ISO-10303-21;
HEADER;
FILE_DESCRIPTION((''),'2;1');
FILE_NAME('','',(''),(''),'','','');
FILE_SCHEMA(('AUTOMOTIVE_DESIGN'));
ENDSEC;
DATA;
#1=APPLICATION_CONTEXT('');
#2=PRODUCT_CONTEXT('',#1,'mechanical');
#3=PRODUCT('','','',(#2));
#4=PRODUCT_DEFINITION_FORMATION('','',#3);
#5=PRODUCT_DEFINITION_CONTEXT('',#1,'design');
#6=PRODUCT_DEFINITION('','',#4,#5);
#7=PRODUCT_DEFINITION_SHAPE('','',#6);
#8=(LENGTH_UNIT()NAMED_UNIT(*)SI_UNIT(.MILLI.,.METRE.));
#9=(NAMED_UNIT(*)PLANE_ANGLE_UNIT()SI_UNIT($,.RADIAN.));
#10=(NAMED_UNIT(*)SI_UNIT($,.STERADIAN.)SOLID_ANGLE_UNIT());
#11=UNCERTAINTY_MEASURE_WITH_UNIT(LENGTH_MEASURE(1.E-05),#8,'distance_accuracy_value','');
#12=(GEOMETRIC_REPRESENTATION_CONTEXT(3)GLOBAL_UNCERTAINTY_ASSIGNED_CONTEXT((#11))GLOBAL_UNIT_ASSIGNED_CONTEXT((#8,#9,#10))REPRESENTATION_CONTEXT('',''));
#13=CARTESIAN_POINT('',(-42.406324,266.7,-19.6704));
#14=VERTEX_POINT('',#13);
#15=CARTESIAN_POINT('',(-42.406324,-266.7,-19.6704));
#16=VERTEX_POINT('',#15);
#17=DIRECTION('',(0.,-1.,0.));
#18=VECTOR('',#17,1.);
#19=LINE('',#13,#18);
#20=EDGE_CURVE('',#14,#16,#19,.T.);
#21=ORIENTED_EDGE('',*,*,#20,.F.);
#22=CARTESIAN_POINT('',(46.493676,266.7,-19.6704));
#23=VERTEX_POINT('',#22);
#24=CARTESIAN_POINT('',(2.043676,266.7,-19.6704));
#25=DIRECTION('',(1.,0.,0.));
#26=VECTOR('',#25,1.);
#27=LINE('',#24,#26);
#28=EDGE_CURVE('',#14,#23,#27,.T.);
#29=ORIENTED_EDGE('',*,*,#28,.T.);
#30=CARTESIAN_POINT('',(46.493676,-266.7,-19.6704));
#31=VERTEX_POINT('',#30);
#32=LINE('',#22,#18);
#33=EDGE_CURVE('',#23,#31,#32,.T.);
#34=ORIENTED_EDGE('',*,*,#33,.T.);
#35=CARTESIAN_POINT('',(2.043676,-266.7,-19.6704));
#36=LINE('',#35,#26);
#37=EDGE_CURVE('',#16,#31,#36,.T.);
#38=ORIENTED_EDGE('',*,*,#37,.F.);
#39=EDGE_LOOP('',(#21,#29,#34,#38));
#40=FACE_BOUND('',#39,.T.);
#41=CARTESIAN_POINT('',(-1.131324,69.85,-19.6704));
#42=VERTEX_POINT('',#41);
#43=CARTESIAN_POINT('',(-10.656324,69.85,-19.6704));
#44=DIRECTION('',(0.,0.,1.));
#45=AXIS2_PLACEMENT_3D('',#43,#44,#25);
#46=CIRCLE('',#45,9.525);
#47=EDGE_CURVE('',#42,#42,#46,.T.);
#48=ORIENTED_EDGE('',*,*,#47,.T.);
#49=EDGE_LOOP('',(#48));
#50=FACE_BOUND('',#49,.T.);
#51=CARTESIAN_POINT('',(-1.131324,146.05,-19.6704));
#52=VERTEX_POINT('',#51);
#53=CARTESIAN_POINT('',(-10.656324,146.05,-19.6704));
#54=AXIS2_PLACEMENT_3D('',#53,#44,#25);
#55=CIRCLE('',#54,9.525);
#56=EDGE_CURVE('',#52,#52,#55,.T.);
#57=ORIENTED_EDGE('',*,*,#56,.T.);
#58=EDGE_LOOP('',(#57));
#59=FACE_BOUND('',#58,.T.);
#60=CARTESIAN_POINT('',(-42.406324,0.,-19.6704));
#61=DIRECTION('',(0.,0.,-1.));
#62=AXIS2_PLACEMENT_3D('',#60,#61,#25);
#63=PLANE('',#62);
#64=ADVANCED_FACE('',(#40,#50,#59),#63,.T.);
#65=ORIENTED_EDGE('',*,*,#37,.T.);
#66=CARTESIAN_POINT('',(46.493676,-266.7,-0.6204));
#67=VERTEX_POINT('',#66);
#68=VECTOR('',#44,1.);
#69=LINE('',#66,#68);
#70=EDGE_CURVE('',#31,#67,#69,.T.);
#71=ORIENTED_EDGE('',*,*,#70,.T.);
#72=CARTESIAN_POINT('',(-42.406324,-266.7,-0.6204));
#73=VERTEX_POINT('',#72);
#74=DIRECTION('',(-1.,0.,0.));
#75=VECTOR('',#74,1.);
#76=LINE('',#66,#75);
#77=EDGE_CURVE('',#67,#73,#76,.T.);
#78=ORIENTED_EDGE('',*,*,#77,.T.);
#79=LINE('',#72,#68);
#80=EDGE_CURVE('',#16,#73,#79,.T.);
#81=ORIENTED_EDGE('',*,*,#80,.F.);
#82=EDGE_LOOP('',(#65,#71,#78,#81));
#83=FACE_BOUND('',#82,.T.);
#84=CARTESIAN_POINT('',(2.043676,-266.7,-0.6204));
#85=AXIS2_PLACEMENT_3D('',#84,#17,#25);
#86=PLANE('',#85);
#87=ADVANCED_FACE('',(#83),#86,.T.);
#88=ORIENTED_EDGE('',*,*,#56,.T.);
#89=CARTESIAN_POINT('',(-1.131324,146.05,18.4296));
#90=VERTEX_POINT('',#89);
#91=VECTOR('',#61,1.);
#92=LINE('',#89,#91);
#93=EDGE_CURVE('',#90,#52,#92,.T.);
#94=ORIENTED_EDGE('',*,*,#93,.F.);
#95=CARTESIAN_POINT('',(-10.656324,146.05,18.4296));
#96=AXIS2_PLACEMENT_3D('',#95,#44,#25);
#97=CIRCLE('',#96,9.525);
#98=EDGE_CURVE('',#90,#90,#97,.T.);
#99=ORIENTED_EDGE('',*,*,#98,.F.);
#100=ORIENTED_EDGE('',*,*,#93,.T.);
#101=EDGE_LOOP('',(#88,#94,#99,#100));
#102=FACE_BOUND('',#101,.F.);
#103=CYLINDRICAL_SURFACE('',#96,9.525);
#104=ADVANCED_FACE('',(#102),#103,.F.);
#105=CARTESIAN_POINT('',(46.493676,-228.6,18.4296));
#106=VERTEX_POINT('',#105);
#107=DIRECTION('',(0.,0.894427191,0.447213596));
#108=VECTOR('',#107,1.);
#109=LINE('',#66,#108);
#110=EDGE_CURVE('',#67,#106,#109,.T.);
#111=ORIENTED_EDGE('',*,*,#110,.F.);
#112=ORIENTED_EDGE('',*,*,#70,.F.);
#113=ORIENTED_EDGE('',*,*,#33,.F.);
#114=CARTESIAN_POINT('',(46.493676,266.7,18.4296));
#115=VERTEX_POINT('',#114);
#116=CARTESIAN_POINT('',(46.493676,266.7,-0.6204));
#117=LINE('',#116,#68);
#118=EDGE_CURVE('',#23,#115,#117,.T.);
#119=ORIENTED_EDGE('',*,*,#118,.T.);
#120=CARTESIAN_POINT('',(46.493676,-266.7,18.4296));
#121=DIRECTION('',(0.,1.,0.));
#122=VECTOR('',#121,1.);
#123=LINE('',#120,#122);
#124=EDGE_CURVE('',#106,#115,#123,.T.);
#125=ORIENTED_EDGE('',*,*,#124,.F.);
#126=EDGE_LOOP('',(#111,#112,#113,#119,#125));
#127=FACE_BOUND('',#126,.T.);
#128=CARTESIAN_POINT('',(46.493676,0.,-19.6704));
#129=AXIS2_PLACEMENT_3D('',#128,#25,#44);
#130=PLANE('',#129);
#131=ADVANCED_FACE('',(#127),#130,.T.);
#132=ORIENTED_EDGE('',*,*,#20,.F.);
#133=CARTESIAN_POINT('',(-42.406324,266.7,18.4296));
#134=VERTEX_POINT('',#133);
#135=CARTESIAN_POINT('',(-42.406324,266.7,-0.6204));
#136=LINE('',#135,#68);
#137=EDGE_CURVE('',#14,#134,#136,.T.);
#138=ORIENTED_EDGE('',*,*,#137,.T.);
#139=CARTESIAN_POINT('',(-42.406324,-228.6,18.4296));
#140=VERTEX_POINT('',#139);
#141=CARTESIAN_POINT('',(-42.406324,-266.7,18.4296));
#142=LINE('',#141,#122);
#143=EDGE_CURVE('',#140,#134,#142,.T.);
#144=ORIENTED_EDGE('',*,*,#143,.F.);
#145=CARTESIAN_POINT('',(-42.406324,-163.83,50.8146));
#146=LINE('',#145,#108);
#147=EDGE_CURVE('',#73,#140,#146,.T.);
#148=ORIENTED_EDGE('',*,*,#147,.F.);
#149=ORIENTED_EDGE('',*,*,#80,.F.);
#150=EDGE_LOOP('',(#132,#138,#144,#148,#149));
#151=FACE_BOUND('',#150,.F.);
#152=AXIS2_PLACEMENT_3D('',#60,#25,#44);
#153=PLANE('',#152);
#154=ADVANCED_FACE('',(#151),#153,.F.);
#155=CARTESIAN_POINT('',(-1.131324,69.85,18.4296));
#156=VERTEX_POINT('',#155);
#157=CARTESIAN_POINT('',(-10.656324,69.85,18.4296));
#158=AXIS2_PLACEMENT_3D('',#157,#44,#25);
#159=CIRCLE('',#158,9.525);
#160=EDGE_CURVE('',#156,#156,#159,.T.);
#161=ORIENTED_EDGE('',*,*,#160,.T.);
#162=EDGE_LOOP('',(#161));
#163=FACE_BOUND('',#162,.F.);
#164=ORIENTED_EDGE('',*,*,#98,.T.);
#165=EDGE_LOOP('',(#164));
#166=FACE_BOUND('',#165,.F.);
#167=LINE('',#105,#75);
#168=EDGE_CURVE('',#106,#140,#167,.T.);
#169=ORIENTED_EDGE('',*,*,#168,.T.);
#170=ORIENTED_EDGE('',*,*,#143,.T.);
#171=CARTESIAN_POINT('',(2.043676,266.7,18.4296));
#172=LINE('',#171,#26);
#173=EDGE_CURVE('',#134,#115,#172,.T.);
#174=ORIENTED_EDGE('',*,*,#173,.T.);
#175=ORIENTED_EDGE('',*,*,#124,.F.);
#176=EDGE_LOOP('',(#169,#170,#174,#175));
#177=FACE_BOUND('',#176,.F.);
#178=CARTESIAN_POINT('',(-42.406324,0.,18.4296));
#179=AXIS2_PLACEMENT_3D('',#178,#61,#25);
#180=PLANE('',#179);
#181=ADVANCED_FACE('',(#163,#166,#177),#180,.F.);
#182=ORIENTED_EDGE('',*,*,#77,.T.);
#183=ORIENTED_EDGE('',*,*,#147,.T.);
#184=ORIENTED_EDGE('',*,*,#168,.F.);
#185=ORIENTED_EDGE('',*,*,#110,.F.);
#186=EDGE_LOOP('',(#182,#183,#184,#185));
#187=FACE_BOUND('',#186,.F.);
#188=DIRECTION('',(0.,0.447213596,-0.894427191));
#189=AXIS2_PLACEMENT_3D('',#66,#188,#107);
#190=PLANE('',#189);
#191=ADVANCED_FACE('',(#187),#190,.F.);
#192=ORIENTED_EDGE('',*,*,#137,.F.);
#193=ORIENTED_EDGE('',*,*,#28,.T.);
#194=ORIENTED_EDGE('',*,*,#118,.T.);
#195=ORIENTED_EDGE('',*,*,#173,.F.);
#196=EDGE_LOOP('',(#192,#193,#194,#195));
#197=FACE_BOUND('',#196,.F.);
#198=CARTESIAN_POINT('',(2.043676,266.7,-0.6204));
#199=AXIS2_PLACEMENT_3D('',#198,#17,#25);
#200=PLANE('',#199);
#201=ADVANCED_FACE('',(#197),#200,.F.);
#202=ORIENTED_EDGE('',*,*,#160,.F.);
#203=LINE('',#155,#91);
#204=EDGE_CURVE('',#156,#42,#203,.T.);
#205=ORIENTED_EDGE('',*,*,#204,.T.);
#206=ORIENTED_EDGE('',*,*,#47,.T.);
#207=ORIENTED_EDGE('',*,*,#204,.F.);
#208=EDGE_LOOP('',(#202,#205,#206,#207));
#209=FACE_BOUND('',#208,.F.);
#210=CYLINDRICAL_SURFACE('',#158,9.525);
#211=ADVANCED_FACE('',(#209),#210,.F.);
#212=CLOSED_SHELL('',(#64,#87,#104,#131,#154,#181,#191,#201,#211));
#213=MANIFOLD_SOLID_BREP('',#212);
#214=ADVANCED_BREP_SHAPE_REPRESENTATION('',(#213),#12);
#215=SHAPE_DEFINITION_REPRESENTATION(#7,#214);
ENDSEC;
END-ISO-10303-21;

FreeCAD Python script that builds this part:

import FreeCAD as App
import Part
import Sketcher
Q = App.Units.Quantity


def add_polygon(sketch, points):
    """Adds a closed chain of lines whose ends are joined by coincident constraints."""
    first, n = sketch.GeometryCount, len(points)
    for a, b in zip(points, points[1:] + points[:1]):
        sketch.addGeometry(Part.LineSegment(App.Vector(*a, 0), App.Vector(*b, 0)), False)
    for i in range(n):
        sketch.addConstraint(Sketcher.Constraint("Coincident", first + i, 2, first + (i + 1) % n, 1))

doc = App.newDocument("Part")
body = doc.addObject("PartDesign::Body", "Body")

sketch1 = body.newObject("Sketcher::SketchObject", "Sketch")
sketch1.AttachmentSupport = (doc.getObject("XZ_Plane"), [""])
sketch1.MapMode = "FlatFace"
add_polygon(sketch1, [(-42, 18), (-42, -20), (46, -20), (46, 18)])
sketch1.addConstraint([
    Sketcher.Constraint("Vertical", 0),
    Sketcher.Constraint("Horizontal", 1),
    Sketcher.Constraint("Vertical", 2),
    Sketcher.Constraint("Horizontal", 3),
    Sketcher.Constraint("DistanceX", 1, 1, 1, 2, Q("3.5 in")),
    Sketcher.Constraint("DistanceY", 0, 2, 0, 1, Q("1.5 in")),
    Sketcher.Constraint("DistanceY", 0, 2, -1, 1, 19.6704),
    Sketcher.Constraint("DistanceX", 0, 2, -1, 1, 42.406324),
])
pad1 = body.newObject("PartDesign::Pad", "Pad")
pad1.Profile = sketch1
pad1.Length = Q("21 in")
pad1.Midplane = True

sketch2 = body.newObject("Sketcher::SketchObject", "Sketch001")
sketch2.AttachmentSupport = (doc.getObject("YZ_Plane"), [""])
sketch2.MapMode = "FlatFace"
sketch2.AttachmentOffset = App.Placement(App.Vector(0, 0, 46.493676), App.Rotation())
add_polygon(sketch2, [(-267, -1), (-229, 18), (-267, 18)])
sketch2.addConstraint([
    Sketcher.Constraint("Horizontal", 1),
    Sketcher.Constraint("Vertical", 2),
    Sketcher.Constraint("DistanceX", 1, 2, 1, 1, Q("1.5 in")),
    Sketcher.Constraint("DistanceX", 0, 2, -1, 1, Q("9 in")),
    Sketcher.Constraint("DistanceY", 2, 2, 2, 1, Q("0.75 in")),
    Sketcher.Constraint("DistanceY", -1, 1, 0, 2, 18.4296),
])
pocket1 = body.newObject("PartDesign::Pocket", "Pocket")
pocket1.Profile = sketch2
pocket1.Type = "ThroughAll"

sketch3 = body.newObject("Sketcher::SketchObject", "Sketch002")
sketch3.AttachmentSupport = (doc.getObject("XY_Plane"), [""])
sketch3.MapMode = "FlatFace"
sketch3.AttachmentOffset = App.Placement(App.Vector(0, 0, 18.4296), App.Rotation())
sketch3.addGeometry([
    Part.Circle(App.Vector(-11, 146, 0), App.Vector(0, 0, 1), 10),
    Part.Circle(App.Vector(-11, 70, 0), App.Vector(0, 0, 1), 10),
], False)
sketch3.addConstraint([
    Sketcher.Constraint("Equal", 0, 1),
    Sketcher.Constraint("Vertical", 0, 3, 1, 3),
    Sketcher.Constraint("Diameter", 0, Q("0.75 in")),
    Sketcher.Constraint("DistanceY", 1, 3, 0, 3, Q("3 in")),
    Sketcher.Constraint("DistanceY", -1, 1, 0, 3, Q("5.75 in")),
    Sketcher.Constraint("DistanceX", 0, 3, -1, 1, 10.656324),
])
pocket2 = body.newObject("PartDesign::Pocket", "Pocket001")
pocket2.Profile = sketch3
pocket2.Type = "ThroughAll"

doc.recompute()
